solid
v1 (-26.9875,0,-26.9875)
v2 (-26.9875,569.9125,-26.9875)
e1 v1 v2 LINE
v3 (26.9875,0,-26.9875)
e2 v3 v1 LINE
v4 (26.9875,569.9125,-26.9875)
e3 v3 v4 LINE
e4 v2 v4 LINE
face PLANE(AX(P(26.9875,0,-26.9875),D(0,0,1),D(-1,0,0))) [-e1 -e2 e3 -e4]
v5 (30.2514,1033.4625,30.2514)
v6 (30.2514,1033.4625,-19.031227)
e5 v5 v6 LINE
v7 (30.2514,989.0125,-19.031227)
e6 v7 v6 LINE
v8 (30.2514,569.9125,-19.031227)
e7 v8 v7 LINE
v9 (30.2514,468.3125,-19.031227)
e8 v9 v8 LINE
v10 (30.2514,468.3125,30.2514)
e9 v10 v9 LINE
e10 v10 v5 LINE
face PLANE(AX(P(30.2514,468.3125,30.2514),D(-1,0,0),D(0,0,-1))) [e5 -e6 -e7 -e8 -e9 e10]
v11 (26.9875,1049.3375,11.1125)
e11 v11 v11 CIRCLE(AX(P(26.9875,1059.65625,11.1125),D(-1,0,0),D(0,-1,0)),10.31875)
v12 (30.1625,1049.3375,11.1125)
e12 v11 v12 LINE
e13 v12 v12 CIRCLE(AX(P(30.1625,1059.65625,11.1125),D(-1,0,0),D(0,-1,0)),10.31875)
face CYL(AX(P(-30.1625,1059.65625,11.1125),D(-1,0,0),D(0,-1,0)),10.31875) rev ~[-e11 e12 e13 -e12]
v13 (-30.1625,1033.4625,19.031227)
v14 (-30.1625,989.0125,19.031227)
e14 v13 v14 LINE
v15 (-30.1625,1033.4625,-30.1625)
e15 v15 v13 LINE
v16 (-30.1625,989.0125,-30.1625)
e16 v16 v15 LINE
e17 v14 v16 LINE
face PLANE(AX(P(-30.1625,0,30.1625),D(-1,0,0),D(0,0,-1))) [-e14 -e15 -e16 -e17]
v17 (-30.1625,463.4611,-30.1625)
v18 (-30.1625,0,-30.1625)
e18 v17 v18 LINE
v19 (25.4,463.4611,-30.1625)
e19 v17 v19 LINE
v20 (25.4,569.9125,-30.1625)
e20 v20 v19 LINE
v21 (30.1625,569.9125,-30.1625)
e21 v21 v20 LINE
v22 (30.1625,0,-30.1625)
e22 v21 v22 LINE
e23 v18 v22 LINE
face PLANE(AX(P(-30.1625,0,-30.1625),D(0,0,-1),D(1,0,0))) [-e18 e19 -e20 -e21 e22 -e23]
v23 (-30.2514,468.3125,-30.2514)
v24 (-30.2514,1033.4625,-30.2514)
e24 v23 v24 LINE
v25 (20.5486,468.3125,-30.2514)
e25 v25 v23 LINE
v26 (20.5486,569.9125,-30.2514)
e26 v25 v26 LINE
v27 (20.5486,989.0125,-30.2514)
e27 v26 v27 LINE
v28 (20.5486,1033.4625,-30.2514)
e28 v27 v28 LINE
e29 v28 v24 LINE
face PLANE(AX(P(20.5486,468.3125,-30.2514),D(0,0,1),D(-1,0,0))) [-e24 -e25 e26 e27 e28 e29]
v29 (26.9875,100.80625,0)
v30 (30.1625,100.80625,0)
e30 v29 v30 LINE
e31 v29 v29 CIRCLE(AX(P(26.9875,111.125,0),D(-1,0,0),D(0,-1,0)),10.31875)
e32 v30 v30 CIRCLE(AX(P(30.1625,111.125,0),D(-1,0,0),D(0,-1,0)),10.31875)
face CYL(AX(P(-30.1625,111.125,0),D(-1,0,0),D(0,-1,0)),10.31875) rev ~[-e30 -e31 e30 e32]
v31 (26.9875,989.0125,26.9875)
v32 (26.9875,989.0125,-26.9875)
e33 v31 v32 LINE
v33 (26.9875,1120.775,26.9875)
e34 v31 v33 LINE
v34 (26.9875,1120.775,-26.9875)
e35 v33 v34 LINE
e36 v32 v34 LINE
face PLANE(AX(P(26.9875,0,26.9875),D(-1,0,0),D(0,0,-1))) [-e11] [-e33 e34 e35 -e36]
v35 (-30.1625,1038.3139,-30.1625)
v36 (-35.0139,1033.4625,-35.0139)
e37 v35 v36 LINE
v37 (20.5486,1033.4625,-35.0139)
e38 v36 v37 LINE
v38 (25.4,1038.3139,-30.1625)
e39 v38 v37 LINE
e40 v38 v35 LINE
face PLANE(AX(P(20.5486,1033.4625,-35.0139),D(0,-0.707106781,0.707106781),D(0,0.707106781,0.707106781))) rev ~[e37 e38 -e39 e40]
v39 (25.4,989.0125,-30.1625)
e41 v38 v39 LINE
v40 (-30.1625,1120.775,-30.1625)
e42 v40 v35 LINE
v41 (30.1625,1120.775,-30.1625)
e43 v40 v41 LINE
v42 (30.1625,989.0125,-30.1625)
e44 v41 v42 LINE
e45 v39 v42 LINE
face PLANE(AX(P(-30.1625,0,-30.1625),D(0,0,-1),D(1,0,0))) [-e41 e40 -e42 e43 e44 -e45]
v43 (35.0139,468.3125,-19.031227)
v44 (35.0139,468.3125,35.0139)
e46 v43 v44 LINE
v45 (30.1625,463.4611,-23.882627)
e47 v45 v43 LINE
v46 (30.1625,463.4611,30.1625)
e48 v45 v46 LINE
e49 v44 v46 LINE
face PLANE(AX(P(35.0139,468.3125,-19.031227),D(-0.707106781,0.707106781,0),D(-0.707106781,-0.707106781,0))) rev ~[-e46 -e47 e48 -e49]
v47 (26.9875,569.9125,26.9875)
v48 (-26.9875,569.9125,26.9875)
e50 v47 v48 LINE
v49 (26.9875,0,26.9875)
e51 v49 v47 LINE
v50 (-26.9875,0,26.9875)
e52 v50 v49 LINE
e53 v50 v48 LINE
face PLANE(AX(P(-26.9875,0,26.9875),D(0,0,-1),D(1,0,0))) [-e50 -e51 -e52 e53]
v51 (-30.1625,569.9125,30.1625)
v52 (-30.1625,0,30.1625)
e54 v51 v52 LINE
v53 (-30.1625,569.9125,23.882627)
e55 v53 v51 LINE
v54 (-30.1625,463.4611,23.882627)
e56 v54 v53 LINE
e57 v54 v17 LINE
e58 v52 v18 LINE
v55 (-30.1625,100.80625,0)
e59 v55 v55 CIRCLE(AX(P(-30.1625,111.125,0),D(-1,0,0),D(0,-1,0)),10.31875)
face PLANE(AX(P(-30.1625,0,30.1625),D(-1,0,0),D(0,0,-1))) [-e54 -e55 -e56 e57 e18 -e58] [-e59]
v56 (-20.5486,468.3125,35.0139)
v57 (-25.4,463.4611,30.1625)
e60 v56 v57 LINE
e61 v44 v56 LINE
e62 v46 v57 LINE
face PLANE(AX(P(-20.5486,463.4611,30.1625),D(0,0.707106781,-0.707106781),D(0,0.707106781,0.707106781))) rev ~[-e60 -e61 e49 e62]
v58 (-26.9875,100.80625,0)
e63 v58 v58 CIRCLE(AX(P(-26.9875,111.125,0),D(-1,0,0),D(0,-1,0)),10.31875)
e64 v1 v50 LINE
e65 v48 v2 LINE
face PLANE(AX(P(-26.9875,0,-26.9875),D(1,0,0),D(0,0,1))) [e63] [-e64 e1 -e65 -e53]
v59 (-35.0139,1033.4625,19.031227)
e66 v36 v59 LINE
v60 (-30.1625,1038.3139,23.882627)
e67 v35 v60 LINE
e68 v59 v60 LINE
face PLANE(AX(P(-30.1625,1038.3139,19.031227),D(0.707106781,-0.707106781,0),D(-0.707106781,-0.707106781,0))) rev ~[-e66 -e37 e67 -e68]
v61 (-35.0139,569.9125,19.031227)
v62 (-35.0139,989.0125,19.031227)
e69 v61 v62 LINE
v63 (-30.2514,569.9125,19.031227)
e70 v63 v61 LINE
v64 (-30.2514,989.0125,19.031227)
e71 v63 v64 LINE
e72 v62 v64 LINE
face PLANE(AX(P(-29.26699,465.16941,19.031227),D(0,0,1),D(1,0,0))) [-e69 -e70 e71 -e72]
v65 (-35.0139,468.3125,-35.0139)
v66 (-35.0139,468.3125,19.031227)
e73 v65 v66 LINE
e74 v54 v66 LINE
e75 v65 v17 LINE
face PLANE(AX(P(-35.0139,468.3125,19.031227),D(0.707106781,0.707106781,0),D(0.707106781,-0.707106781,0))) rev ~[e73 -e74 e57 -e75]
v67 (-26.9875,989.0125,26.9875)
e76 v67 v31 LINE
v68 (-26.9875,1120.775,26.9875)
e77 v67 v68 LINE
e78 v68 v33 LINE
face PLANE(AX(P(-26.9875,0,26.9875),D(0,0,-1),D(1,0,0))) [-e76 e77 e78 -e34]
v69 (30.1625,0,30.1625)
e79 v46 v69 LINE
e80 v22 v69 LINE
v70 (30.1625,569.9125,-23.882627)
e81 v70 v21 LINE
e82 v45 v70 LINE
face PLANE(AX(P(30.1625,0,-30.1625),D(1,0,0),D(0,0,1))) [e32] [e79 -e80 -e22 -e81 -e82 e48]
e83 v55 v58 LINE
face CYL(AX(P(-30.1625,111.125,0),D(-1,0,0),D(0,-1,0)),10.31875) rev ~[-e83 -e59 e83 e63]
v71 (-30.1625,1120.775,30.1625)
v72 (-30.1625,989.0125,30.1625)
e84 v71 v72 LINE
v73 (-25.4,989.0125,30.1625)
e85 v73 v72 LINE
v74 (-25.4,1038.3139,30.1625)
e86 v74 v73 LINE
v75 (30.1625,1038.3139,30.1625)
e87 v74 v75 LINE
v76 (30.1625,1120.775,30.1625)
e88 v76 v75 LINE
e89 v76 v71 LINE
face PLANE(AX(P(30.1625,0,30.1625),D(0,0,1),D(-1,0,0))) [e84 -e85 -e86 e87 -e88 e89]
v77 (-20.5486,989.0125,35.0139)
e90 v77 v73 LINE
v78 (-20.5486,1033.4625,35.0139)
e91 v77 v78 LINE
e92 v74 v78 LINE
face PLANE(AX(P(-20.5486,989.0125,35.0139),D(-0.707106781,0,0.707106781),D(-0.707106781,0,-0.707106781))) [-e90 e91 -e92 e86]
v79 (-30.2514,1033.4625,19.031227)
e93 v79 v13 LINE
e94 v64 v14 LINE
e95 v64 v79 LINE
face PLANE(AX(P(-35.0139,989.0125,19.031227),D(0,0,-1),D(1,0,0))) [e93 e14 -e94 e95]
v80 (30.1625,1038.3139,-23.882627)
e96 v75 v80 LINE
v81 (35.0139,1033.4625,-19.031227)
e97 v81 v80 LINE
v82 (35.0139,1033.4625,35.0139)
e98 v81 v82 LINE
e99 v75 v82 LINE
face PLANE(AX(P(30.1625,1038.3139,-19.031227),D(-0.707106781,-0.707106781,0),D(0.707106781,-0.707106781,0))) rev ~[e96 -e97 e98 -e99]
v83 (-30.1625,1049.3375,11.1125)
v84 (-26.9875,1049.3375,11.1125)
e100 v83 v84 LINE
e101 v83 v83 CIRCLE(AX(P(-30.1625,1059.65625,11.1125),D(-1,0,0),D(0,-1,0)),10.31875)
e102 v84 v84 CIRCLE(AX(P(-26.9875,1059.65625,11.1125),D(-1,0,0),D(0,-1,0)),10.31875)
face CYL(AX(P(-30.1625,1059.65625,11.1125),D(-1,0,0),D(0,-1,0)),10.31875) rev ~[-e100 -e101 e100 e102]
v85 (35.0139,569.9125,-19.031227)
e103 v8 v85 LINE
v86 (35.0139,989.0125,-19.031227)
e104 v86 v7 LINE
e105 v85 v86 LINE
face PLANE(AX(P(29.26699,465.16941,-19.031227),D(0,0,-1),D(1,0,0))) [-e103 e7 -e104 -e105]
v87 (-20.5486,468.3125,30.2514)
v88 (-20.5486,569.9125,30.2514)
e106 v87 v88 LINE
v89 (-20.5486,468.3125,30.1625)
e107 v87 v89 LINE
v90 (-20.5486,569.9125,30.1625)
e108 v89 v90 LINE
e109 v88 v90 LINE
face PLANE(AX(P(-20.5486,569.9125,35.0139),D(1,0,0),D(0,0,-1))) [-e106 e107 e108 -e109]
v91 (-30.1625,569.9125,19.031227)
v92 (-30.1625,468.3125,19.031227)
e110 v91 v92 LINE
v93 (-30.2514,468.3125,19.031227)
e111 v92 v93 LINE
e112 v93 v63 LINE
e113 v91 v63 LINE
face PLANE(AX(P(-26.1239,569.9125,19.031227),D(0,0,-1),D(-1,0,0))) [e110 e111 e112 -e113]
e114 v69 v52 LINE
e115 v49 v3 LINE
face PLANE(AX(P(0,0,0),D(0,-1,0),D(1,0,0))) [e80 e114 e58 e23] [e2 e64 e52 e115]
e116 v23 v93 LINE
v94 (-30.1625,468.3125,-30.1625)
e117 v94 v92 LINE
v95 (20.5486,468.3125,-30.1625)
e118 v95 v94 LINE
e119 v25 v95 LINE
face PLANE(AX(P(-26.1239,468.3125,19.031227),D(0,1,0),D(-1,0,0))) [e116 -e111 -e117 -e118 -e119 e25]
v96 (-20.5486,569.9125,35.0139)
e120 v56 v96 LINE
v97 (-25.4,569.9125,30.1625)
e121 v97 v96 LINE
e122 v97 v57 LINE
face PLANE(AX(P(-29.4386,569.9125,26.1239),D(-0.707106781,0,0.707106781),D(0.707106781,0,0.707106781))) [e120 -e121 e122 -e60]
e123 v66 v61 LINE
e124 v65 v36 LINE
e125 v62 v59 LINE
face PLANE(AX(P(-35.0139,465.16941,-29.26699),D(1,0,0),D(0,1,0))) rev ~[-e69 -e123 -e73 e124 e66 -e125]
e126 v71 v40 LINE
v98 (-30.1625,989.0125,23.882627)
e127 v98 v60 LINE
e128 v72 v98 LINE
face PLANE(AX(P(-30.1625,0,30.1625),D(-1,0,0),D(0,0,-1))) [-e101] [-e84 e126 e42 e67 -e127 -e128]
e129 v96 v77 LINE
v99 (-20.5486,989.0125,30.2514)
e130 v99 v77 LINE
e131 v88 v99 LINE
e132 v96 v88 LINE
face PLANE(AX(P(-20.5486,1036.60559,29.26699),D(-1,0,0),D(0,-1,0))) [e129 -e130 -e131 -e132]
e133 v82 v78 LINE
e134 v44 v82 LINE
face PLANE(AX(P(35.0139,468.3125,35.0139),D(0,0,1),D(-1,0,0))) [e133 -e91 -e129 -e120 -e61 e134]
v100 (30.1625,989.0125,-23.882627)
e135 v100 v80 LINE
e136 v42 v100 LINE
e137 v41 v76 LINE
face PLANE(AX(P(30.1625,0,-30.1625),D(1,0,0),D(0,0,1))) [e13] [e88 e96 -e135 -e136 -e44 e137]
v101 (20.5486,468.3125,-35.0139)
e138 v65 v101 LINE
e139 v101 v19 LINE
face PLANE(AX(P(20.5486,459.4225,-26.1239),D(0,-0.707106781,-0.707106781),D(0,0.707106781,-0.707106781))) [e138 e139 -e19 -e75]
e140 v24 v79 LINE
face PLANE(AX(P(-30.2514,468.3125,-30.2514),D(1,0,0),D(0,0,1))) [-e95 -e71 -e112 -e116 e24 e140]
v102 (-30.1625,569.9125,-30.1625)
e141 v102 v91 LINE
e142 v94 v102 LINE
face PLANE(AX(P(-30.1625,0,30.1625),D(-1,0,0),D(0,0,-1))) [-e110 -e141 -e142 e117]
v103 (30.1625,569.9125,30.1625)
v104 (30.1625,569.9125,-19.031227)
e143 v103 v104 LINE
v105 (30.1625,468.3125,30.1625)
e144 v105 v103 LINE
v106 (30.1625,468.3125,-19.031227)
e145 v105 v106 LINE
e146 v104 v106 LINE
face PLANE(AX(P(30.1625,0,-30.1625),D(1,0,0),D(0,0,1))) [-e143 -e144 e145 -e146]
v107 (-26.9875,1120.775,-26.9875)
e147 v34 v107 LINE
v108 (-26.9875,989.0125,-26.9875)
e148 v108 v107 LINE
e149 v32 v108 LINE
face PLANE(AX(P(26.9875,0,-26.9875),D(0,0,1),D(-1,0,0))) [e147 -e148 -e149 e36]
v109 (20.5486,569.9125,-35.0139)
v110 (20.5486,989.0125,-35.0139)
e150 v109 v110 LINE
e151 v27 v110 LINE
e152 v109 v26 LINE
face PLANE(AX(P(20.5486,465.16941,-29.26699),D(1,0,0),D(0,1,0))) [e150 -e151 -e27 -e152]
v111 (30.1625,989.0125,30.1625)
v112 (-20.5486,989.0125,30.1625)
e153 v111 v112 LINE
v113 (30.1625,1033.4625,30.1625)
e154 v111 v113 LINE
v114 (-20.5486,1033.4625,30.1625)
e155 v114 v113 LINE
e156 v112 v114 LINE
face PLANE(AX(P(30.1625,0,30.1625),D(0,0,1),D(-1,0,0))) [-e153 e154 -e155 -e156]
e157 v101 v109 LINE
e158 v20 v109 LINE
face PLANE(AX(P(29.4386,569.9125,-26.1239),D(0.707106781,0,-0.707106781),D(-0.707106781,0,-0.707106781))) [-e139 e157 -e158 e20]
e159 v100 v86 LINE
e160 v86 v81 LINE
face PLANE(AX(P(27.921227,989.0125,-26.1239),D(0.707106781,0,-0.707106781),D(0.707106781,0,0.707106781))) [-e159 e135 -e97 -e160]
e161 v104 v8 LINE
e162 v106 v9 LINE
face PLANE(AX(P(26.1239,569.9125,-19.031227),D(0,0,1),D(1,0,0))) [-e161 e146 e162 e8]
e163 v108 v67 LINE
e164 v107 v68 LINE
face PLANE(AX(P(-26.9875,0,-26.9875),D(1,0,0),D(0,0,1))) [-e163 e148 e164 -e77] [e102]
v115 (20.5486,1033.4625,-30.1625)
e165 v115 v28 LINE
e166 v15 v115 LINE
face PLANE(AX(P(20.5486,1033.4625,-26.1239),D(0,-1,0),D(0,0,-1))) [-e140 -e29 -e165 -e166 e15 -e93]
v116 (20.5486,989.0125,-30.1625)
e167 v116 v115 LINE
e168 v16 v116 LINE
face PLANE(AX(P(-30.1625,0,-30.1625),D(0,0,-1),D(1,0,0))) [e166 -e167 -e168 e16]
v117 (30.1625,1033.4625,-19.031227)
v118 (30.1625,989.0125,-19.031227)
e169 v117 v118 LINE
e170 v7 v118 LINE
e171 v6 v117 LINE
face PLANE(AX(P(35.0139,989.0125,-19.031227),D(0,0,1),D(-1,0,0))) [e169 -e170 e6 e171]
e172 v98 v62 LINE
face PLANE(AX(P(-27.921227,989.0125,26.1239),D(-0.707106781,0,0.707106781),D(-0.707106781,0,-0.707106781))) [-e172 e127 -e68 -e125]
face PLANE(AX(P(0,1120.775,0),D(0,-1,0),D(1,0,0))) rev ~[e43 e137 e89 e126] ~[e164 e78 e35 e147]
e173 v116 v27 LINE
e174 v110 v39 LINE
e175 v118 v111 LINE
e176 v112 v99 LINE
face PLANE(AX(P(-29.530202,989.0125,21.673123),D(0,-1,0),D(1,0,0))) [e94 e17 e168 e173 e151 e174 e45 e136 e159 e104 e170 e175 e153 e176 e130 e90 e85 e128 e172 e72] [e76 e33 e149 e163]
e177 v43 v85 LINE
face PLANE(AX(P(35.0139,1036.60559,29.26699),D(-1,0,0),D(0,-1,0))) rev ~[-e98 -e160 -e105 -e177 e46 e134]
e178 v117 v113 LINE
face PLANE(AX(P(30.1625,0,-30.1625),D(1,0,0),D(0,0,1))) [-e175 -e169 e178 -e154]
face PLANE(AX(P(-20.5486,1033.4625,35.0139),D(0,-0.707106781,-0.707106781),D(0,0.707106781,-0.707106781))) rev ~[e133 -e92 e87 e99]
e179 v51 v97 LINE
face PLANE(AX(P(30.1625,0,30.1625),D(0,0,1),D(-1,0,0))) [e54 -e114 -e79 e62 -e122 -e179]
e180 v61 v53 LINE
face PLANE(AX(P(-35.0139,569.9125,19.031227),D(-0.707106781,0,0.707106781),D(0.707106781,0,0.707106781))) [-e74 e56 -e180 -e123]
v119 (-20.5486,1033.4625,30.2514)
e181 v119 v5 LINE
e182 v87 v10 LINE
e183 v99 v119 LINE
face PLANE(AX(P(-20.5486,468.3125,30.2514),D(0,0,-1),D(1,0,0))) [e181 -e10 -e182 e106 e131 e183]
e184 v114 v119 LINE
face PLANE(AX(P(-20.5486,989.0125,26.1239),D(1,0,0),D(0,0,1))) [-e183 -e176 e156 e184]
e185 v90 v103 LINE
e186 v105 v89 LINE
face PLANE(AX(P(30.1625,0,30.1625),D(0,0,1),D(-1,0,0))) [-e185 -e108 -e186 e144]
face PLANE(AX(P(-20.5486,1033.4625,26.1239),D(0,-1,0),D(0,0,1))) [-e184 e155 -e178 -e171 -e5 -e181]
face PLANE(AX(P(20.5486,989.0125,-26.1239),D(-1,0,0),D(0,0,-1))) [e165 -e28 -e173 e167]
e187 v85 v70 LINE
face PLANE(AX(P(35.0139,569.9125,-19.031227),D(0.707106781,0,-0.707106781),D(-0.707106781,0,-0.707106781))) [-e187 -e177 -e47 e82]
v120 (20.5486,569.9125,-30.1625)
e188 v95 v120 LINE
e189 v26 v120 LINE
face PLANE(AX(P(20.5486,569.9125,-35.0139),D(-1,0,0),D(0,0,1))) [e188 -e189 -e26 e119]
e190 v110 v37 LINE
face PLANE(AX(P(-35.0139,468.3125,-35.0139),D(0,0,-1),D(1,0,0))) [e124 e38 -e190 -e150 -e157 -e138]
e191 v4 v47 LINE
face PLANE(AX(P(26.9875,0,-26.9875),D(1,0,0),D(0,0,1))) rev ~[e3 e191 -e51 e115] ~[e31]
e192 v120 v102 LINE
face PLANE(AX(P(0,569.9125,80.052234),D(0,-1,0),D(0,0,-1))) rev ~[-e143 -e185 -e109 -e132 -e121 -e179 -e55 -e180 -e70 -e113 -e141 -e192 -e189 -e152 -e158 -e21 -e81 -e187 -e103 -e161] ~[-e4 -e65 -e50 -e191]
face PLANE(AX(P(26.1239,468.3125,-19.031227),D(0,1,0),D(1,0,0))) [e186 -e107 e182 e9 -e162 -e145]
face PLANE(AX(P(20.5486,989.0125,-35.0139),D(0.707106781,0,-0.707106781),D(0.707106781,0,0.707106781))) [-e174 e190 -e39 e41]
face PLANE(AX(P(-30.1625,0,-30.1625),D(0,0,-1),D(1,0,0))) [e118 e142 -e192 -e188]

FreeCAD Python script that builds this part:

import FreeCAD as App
import Part
import Sketcher

V = App.Vector
Q = App.Units.Quantity


def add_polygon(sketch, points):
    """Adds a closed chain of lines whose ends are joined by coincident constraints."""
    first, n = sketch.GeometryCount, len(points)
    for a, b in zip(points, points[1:] + points[:1]):
        sketch.addGeometry(Part.LineSegment(App.Vector(*a, 0), App.Vector(*b, 0)), False)
    for i in range(n):
        sketch.addConstraint(Sketcher.Constraint("Coincident", first + i, 2, first + (i + 1) % n, 1))

doc = App.newDocument("Part")
body = doc.addObject("PartDesign::Body", "Body")
body.AllowCompound = True

sketch1 = body.newObject("Sketcher::SketchObject", "Sketch")
sketch1.AttachmentSupport = (doc.getObject("XZ_Plane"), [""])
sketch1.MapMode = "FlatFace"
add_polygon(sketch1, [(30, 30), (-30, 30), (-30, -30), (30, -30)])
add_polygon(sketch1, [(-27, 27), (27, 27), (27, -27), (-27, -27)])
sketch1.addConstraint([
    Sketcher.Constraint("Horizontal", 0),
    Sketcher.Constraint("Vertical", 1),
    Sketcher.Constraint("Horizontal", 2),
    Sketcher.Constraint("Vertical", 3),
    Sketcher.Constraint("Horizontal", 4),
    Sketcher.Constraint("Vertical", 5),
    Sketcher.Constraint("Horizontal", 6),
    Sketcher.Constraint("Vertical", 7),
    Sketcher.Constraint("Symmetric", 0, 2, 2, 2, -1, 1),
    Sketcher.Constraint("Symmetric", 4, 2, 6, 2, -1, 1),
    Sketcher.Constraint("Equal", 2, 1),
    Sketcher.Constraint("Equal", 6, 5),
    Sketcher.Constraint("DistanceX", 0, 2, 0, 1, Q("2.375 in")),
    Sketcher.Constraint("DistanceX", 4, 1, 4, 2, Q("2.125 in")),
])
pad1 = body.newObject("PartDesign::Pad", "Pad")
pad1.Profile = sketch1
pad1.Length = Q("44.125 in")
pad1.Reversed = True

sketch2 = body.newObject("Sketcher::SketchObject", "Sketch001")
sketch2.AttachmentSupport = (doc.getObject("YZ_Plane"), [""])
sketch2.MapMode = "FlatFace"
add_polygon(sketch2, [(570, 80), (570, -86), (989, -86), (989, 80)])
sketch2.addConstraint([
    Sketcher.Constraint("Vertical", 0),
    Sketcher.Constraint("Horizontal", 1),
    Sketcher.Constraint("Vertical", 2),
    Sketcher.Constraint("Horizontal", 3),
    Sketcher.Constraint("DistanceX", 1, 1, 1, 2, Q("16.5 in")),
    Sketcher.Constraint("DistanceX", -1, 1, 0, 2, Q("22.4375 in")),
    Sketcher.Constraint("DistanceY", 0, 2, 0, 1, Q("166.374519 mm")),
    Sketcher.Constraint("DistanceY", 0, 2, -1, 1, Q("86.322285 mm")),
])
pocket1 = body.newObject("PartDesign::Pocket", "Pocket")
pocket1.Profile = sketch2
pocket1.Length = Q("4.2 in")
pocket1.Midplane = True
body2 = doc.addObject("PartDesign::Body", "Body001")
body2.AllowCompound = True

sketch3 = body2.newObject("Sketcher::SketchObject", "Sketch002")
sketch3.AttachmentSupport = (doc.getObject("XZ_Plane001"), [""])
sketch3.MapMode = "FlatFace"
sketch3.AttachmentOffset = App.Placement(V(0, 0, -18.4375 * 25.4), App.Rotation())
add_polygon(sketch3, [(-20.5, 35), (-20.5, 30.3), (30.3, 30.3), (30.3, -19), (35, -19), (35, 35)])
add_polygon(sketch3, [(-30.3, 19), (-35, 19), (-35, -35), (20.5, -35), (20.5, -30.3), (-30.3, -30.3)])
sketch3.addConstraint([
    Sketcher.Constraint("Vertical", 0),
    Sketcher.Constraint("Horizontal", 1),
    Sketcher.Constraint("Vertical", 2),
    Sketcher.Constraint("Horizontal", 3),
    Sketcher.Constraint("Vertical", 4),
    Sketcher.Constraint("Horizontal", 5),
    Sketcher.Constraint("Horizontal", 6),
    Sketcher.Constraint("Vertical", 7),
    Sketcher.Constraint("Horizontal", 8),
    Sketcher.Constraint("Vertical", 9),
    Sketcher.Constraint("Horizontal", 10),
    Sketcher.Constraint("Vertical", 11),
    Sketcher.Constraint("Symmetric", 3, 2, 6, 2, -1, 1),
    Sketcher.Constraint("Symmetric", 5, 2, 8, 2, -1, 1),
    Sketcher.Constraint("Symmetric", 1, 2, 10, 2, -1, 1),
    Sketcher.Constraint("Equal", 6, 0),
    Sketcher.Constraint("DistanceX", 1, 1, 1, 2, Q("2 in")),
    Sketcher.Constraint("DistanceX", 3, 1, 3, 2, Q("0.1875 in")),
    Sketcher.Constraint("DistanceX", 0, 2, -1, 1, Q("0.809 in")),
    Sketcher.Constraint("DistanceY", -1, 1, 0, 2, Q("1.191 in")),
    Sketcher.Constraint("DistanceY", 2, 2, 2, 1, Q("49.282627 mm")),
])
pad2 = body2.newObject("PartDesign::Pad", "Pad001")
pad2.Profile = sketch3
pad2.Length = Q("22.25 in")
pad2.Reversed = True
body.AllowCompound = True
doc.recompute()

boolean = body.newObject("PartDesign::Boolean", "Boolean")
boolean.Type = "Fuse"
boolean.addObjects([body2])

sketch4 = body.newObject("Sketcher::SketchObject", "Sketch003")
sketch4.AttachmentSupport = (doc.getObject("YZ_Plane"), [""])
sketch4.MapMode = "FlatFace"
sketch4.AttachmentOffset = App.Placement(V(0, 0, -0.809 * 25.4), App.Rotation())
add_polygon(sketch4, [(1033, 35), (1042, 26), (1033, 26)])
add_polygon(sketch4, [(459, 26), (468, 35), (468, 26)])
sketch4.addConstraint([
    Sketcher.Constraint("Horizontal", 1),
    Sketcher.Constraint("Vertical", 2),
    Sketcher.Constraint("Vertical", 4),
    Sketcher.Constraint("Horizontal", 5),
    Sketcher.Constraint("Perpendicular", 0, 3),
    Sketcher.Constraint("Horizontal", 2, 2, 3, 2),
    Sketcher.Constraint("Horizontal", 1, 2, 4, 2),
    Sketcher.Constraint("Equal", 1, 5),
    Sketcher.Constraint("DistanceX", 1, 2, 1, 1, Q("0.35 in")),
    Sketcher.Constraint("DistanceX", 3, 2, 0, 2, Q("22.6 in")),
    Sketcher.Constraint("DistanceX", -1, 1, 1, 2, Q("40.6875 in")),
    Sketcher.Constraint("DistanceY", -1, 1, 0, 2, Q("1.0285 in")),
])
pad3 = body.newObject("PartDesign::Pad", "Pad002")
pad3.Profile = sketch4
pad3.Length = Q("2.1875 in")

sketch5 = body.newObject("Sketcher::SketchObject", "Sketch004")
sketch5.AttachmentSupport = (doc.getObject("XY_Plane"), [""])
sketch5.MapMode = "FlatFace"
sketch5.AttachmentOffset = App.Placement(V(0, 0, -19.031227), App.Rotation())
add_polygon(sketch5, [(35, 468), (26, 459), (26, 468)])
add_polygon(sketch5, [(26, 1042), (35, 1033), (26, 1033)])
sketch5.addConstraint([
    Sketcher.Constraint("Vertical", 1),
    Sketcher.Constraint("Horizontal", 2),
    Sketcher.Constraint("Horizontal", 4),
    Sketcher.Constraint("Vertical", 5),
    Sketcher.Constraint("Perpendicular", 0, 3),
    Sketcher.Constraint("Vertical", 2, 2, 3, 2),
    Sketcher.Constraint("Vertical", 1, 2, 4, 2),
    Sketcher.Constraint("Equal", 4, 1),
    Sketcher.Constraint("DistanceX", 2, 1, 2, 2, Q("0.35 in")),
    Sketcher.Constraint("DistanceY", 0, 2, 3, 2, Q("22.6 in")),
    Sketcher.Constraint("DistanceY", -1, 1, 1, 2, Q("18.4375 in")),
    Sketcher.Constraint("DistanceX", -1, 1, 0, 2, Q("1.0285 in")),
])
pad4 = body.newObject("PartDesign::Pad", "Pad003")
pad4.Profile = sketch5
pad4.Length = 45.155127

sketch6 = body.newObject("Sketcher::SketchObject", "Sketch005")
sketch6.AttachmentSupport = (doc.getObject("XY_Plane"), [""])
sketch6.MapMode = "FlatFace"
sketch6.AttachmentOffset = App.Placement(V(0, 0, 1.0285 * 25.4), App.Rotation())
add_polygon(sketch6, [(35, 459.4), (30.2, 459.4), (30.2, 463.5), (35, 468.3)])
sketch6.addConstraint([
    Sketcher.Constraint("Horizontal", 0),
    Sketcher.Constraint("Vertical", 1),
    Sketcher.Constraint("Vertical", 3),
    Sketcher.Constraint("Angle", 2, Q("45 deg")),
    Sketcher.Constraint("DistanceY", 3, 2, 3, 1, Q("0.35 in")),
    Sketcher.Constraint("DistanceX", 0, 2, 0, 1, Q("0.191 in")),
    Sketcher.Constraint("DistanceX", -1, 1, 0, 2, Q("1.1875 in")),
    Sketcher.Constraint("DistanceY", -1, 1, 2, 2, Q("18.4375 in")),
])
pocket2 = body.newObject("PartDesign::Pocket", "Pocket001")
pocket2.Profile = sketch6
pocket2.Length = Q("1 in")
pocket2.Reversed = True

sketch7 = body.newObject("Sketcher::SketchObject", "Sketch006")
sketch7.AttachmentSupport = (doc.getObject("XY_Plane"), [""])
sketch7.MapMode = "FlatFace"
sketch7.AttachmentOffset = App.Placement(V(0, 0, 1.0285 * 25.4), App.Rotation())
add_polygon(sketch7, [(35, 1042.4), (35, 1033.5), (30.2, 1038.3), (30.2, 1042.4)])
sketch7.addConstraint([
    Sketcher.Constraint("Vertical", 0),
    Sketcher.Constraint("Vertical", 2),
    Sketcher.Constraint("Horizontal", 3),
    Sketcher.Constraint("Angle", 1, Q("135 deg")),
    Sketcher.Constraint("DistanceY", 0, 2, 0, 1, Q("0.35 in")),
    Sketcher.Constraint("DistanceX", 3, 1, 3, 2, Q("0.191 in")),
    Sketcher.Constraint("DistanceY", -1, 1, 0, 2, Q("40.6875 in")),
    Sketcher.Constraint("DistanceX", -1, 1, 1, 2, Q("1.1875 in")),
])
pocket3 = body.newObject("PartDesign::Pocket", "Pocket002")
pocket3.Profile = sketch7
pocket3.Length = Q("1 in")
pocket3.Reversed = True

sketch8 = body.newObject("Sketcher::SketchObject", "Sketch007")
sketch8.AttachmentSupport = (doc.getObject("YZ_Plane"), [""])
sketch8.MapMode = "FlatFace"
sketch8.AttachmentOffset = App.Placement(V(0, 0, 0.809 * 25.4), App.Rotation())
add_polygon(sketch8, [(459, -26), (468, -35), (468, -26)])
add_polygon(sketch8, [(1033, -26), (1033, -35), (1042, -26)])
sketch8.addConstraint([
    Sketcher.Constraint("Vertical", 1),
    Sketcher.Constraint("Horizontal", 2),
    Sketcher.Constraint("Vertical", 3),
    Sketcher.Constraint("Horizontal", 5),
    Sketcher.Constraint("Perpendicular", 0, 4),
    Sketcher.Constraint("Horizontal", 0, 2, 3, 2),
    Sketcher.Constraint("Horizontal", 2, 2, 4, 2),
    Sketcher.Constraint("Equal", 2, 5),
    Sketcher.Constraint("DistanceX", 2, 2, 2, 1, Q("0.35 in")),
    Sketcher.Constraint("DistanceX", 2, 2, 3, 2, Q("22.6 in")),
    Sketcher.Constraint("DistanceX", -1, 1, 0, 2, Q("18.4375 in")),
    Sketcher.Constraint("DistanceY", 0, 2, -1, 1, Q("1.3785 in")),
])
pad5 = body.newObject("PartDesign::Pad", "Pad004")
pad5.Profile = sketch8
pad5.Length = Q("2.1875 in")
pad5.Reversed = True

sketch9 = body.newObject("Sketcher::SketchObject", "Sketch008")
sketch9.AttachmentSupport = (doc.getObject("XY_Plane"), [""])
sketch9.MapMode = "FlatFace"
sketch9.AttachmentOffset = App.Placement(V(0, 0, 19.031227), App.Rotation())
add_polygon(sketch9, [(-26, 468), (-35, 468), (-26, 459)])
add_polygon(sketch9, [(-26, 1042), (-35, 1033), (-26, 1033)])
sketch9.addConstraint([
    Sketcher.Constraint("Horizontal", 0),
    Sketcher.Constraint("Vertical", 2),
    Sketcher.Constraint("Horizontal", 4),
    Sketcher.Constraint("Vertical", 5),
    Sketcher.Constraint("Perpendicular", 1, 3),
    Sketcher.Constraint("Vertical", 0, 2, 3, 2),
    Sketcher.Constraint("Vertical", 2, 2, 4, 2),
    Sketcher.Constraint("Equal", 4, 2),
    Sketcher.Constraint("DistanceX", 0, 2, 0, 1, Q("0.35 in")),
    Sketcher.Constraint("DistanceY", 1, 2, 3, 2, Q("22.6 in")),
    Sketcher.Constraint("DistanceY", -1, 1, 0, 2, Q("18.4375 in")),
    Sketcher.Constraint("DistanceX", 0, 2, -1, 1, Q("1.3785 in")),
])
pad6 = body.newObject("PartDesign::Pad", "Pad005")
pad6.Profile = sketch9
pad6.Length = 49.193727
pad6.Reversed = True

sketch10 = body.newObject("Sketcher::SketchObject", "Sketch009")
sketch10.AttachmentSupport = (doc.getObject("XY_Plane"), [""])
sketch10.MapMode = "FlatFace"
sketch10.AttachmentOffset = App.Placement(V(0, 0, -1.0285 * 25.4), App.Rotation())
add_polygon(sketch10, [(-35, 1033.5), (-30.2, 1038.3), (-30.2, 1042.4), (-35, 1042.4)])
sketch10.addConstraint([
    Sketcher.Constraint("Vertical", 1),
    Sketcher.Constraint("Horizontal", 2),
    Sketcher.Constraint("Vertical", 3),
    Sketcher.Constraint("Angle", 0, Q("45 deg")),
    Sketcher.Constraint("DistanceY", 3, 2, 3, 1, Q("0.35 in")),
    Sketcher.Constraint("DistanceX", 2, 2, 2, 1, Q("0.191 in")),
    Sketcher.Constraint("DistanceX", 0, 2, -1, 1, Q("1.1875 in")),
    Sketcher.Constraint("DistanceY", -1, 1, 3, 2, Q("40.6875 in")),
])
pocket4 = body.newObject("PartDesign::Pocket", "Pocket003")
pocket4.Profile = sketch10
pocket4.Length = Q("1 in")

sketch11 = body.newObject("Sketcher::SketchObject", "Sketch010")
sketch11.AttachmentSupport = (doc.getObject("XZ_Plane"), [""])
sketch11.MapMode = "FlatFace"
sketch11.AttachmentOffset = App.Placement(V(0, 0, -22.4375 * 25.4), App.Rotation())
add_polygon(sketch11, [(-29.4, 26.1), (-20.5, 35), (-20.5, 26.1), (-26.1, 26.1), (-26.1, 27.9), (-27.9, 26.1)])
add_polygon(sketch11, [(-27.9, 26.1), (-26.1, 26.1), (-26.1, 19), (-35, 19)])
add_polygon(sketch11, [(26.1, -26.1), (26.1, -19), (35, -19), (27.9, -26.1)])
add_polygon(sketch11, [(20.5, -26.1), (26.1, -26.1), (26.1, -27.9), (27.9, -26.1), (29.4, -26.1), (20.5, -35)])
sketch11.addConstraint([
    Sketcher.Constraint("Vertical", 1),
    Sketcher.Constraint("Horizontal", 2),
    Sketcher.Constraint("Vertical", 3),
    Sketcher.Constraint("Horizontal", 5),
    Sketcher.Constraint("Horizontal", 6),
    Sketcher.Constraint("Vertical", 7),
    Sketcher.Constraint("Horizontal", 8),
    Sketcher.Constraint("Vertical", 10),
    Sketcher.Constraint("Horizontal", 11),
    Sketcher.Constraint("Horizontal", 13),
    Sketcher.Constraint("Horizontal", 14),
    Sketcher.Constraint("Vertical", 15),
    Sketcher.Constraint("Horizontal", 17),
    Sketcher.Constraint("Vertical", 19),
    Sketcher.Constraint("Coincident", 6, 2, 2, 2),
    Sketcher.Constraint("Coincident", 9, 2, 4, 2),
    Sketcher.Constraint("Coincident", 14, 2, 13, 2),
    Sketcher.Constraint("Coincident", 16, 2, 12, 2),
    Sketcher.Constraint("Symmetric", 7, 2, 10, 2, -1, 1),
    Sketcher.Constraint("Symmetric", 4, 2, 12, 2, -1, 1),
    Sketcher.Constraint("Symmetric", 0, 2, 18, 2, -1, 1),
    Sketcher.Constraint("Parallel", 0, 4),
    Sketcher.Constraint("Parallel", 4, 9),
    Sketcher.Constraint("Parallel", 9, 12),
    Sketcher.Constraint("Parallel", 12, 16),
    Sketcher.Constraint("Parallel", 16, 18),
    Sketcher.Constraint("Equal", 11, 1),
    Sketcher.Constraint("Equal", 13, 3),
    Sketcher.Constraint("DistanceX", 8, 2, 8, 1, Q("0.35 in")),
    Sketcher.Constraint("DistanceX", 2, 2, 2, 1, Q("0.2195 in")),
    Sketcher.Constraint("DistanceX", 0, 2, -1, 1, Q("0.809 in")),
    Sketcher.Constraint("DistanceY", 12, 2, 1, 2, Q("2.057 in")),
    Sketcher.Constraint("DistanceX", 5, 2, 5, 1, Q("1.517373 mm")),
])
pad7 = body.newObject("PartDesign::Pad", "Pad006")
pad7.Profile = sketch11
pad7.Length = Q("4.48 in")

sketch12 = body.newObject("Sketcher::SketchObject", "Sketch011")
sketch12.AttachmentSupport = (doc.getObject("YZ_Plane"), [""])
sketch12.MapMode = "FlatFace"
sketch12.AttachmentOffset = App.Placement(V(0, 0, 0.809 * 25.4), App.Rotation())
add_polygon(sketch12, [(468.3, -35), (456.1, -35), (456.1, -30.2), (463.5, -30.2)])
sketch12.addConstraint([
    Sketcher.Constraint("Horizontal", 0),
    Sketcher.Constraint("Vertical", 1),
    Sketcher.Constraint("Horizontal", 2),
    Sketcher.Constraint("Angle", 3, Q("-45 deg")),
    Sketcher.Constraint("DistanceX", 0, 2, 0, 1, Q("0.48 in")),
    Sketcher.Constraint("DistanceX", 2, 1, 2, 2, Q("0.289 in")),
    Sketcher.Constraint("DistanceY", 1, 2, -1, 1, Q("1.1875 in")),
    Sketcher.Constraint("DistanceX", -1, 1, 3, 2, Q("18.4375 in")),
])
pocket5 = body.newObject("PartDesign::Pocket", "Pocket004")
pocket5.Profile = sketch12
pocket5.Length = Q("1 in")
pocket5.Reversed = True

sketch13 = body.newObject("Sketcher::SketchObject", "Sketch012")
sketch13.AttachmentSupport = (doc.getObject("XY_Plane"), [""])
sketch13.MapMode = "FlatFace"
sketch13.AttachmentOffset = App.Placement(V(0, 0, -19.031227), App.Rotation())
add_polygon(sketch13, [(35, 468.3), (30.2, 463.5), (30.2, 456.1), (35, 456.1)])
sketch13.addConstraint([
    Sketcher.Constraint("Vertical", 1),
    Sketcher.Constraint("Horizontal", 2),
    Sketcher.Constraint("Vertical", 3),
    Sketcher.Constraint("Angle", 0, Q("-135 deg")),
    Sketcher.Constraint("DistanceY", 3, 1, 3, 2, Q("0.48 in")),
    Sketcher.Constraint("DistanceX", 2, 1, 2, 2, Q("0.191 in")),
    Sketcher.Constraint("DistanceX", -1, 1, 0, 2, Q("1.1875 in")),
    Sketcher.Constraint("DistanceY", -1, 1, 3, 2, Q("18.4375 in")),
])
pocket6 = body.newObject("PartDesign::Pocket", "Pocket005")
pocket6.Profile = sketch13
pocket6.Length = Q("1 in")

sketch14 = body.newObject("Sketcher::SketchObject", "Sketch013")
sketch14.AttachmentSupport = (doc.getObject("YZ_Plane"), [""])
sketch14.MapMode = "FlatFace"
sketch14.AttachmentOffset = App.Placement(V(0, 0, -0.809 * 25.4), App.Rotation())
add_polygon(sketch14, [(456.1, 35), (456.1, 30.2), (463.5, 30.2), (468.3, 35)])
sketch14.addConstraint([
    Sketcher.Constraint("Vertical", 0),
    Sketcher.Constraint("Horizontal", 1),
    Sketcher.Constraint("Horizontal", 3),
    Sketcher.Constraint("Angle", 2, Q("45 deg")),
    Sketcher.Constraint("DistanceX", 3, 2, 3, 1, Q("0.48 in")),
    Sketcher.Constraint("DistanceX", 1, 1, 1, 2, Q("0.289 in")),
    Sketcher.Constraint("DistanceY", -1, 1, 0, 2, Q("1.1875 in")),
    Sketcher.Constraint("DistanceX", -1, 1, 2, 2, Q("18.4375 in")),
])
pocket7 = body.newObject("PartDesign::Pocket", "Pocket006")
pocket7.Profile = sketch14
pocket7.Length = Q("1 in")

sketch15 = body.newObject("Sketcher::SketchObject", "Sketch014")
sketch15.AttachmentSupport = (doc.getObject("XY_Plane"), [""])
sketch15.MapMode = "FlatFace"
sketch15.AttachmentOffset = App.Placement(V(0, 0, 19.031227), App.Rotation())
add_polygon(sketch15, [(-35, 468.3), (-30.2, 463.5), (-30.2, 456.1), (-35, 456.1)])
sketch15.addConstraint([
    Sketcher.Constraint("Vertical", 1),
    Sketcher.Constraint("Horizontal", 2),
    Sketcher.Constraint("Vertical", 3),
    Sketcher.Constraint("Angle", 0, Q("-45 deg")),
    Sketcher.Constraint("DistanceY", 3, 1, 3, 2, Q("0.48 in")),
    Sketcher.Constraint("DistanceX", 2, 2, 2, 1, Q("0.191 in")),
    Sketcher.Constraint("DistanceX", 0, 2, -1, 1, Q("1.1875 in")),
    Sketcher.Constraint("DistanceY", -1, 1, 3, 2, Q("18.4375 in")),
])
pocket8 = body.newObject("PartDesign::Pocket", "Pocket007")
pocket8.Profile = sketch15
pocket8.Length = Q("20 in")
pocket8.Midplane = True

sketch16 = body.newObject("Sketcher::SketchObject", "Sketch015")
sketch16.AttachmentSupport = (doc.getObject("XZ_Plane"), [""])
sketch16.MapMode = "FlatFace"
sketch16.AttachmentOffset = App.Placement(V(0, 0, -38.9375 * 25.4), App.Rotation())
add_polygon(sketch16, [(-35, 19), (-26.1, 19), (-26.1, 26.1), (-27.9, 26.1)])
add_polygon(sketch16, [(-26.1, 27.9), (-26.1, 26.1), (-20.5, 26.1), (-20.5, 35), (-29.4, 26.1), (-27.9, 26.1)])
add_polygon(sketch16, [(20.5, -26.1), (20.5, -35), (29.4, -26.1), (27.9, -26.1), (26.1, -27.9), (26.1, -26.1)])
add_polygon(sketch16, [(26.1, -19), (26.1, -26.1), (27.9, -26.1), (35, -19)])
sketch16.addConstraint([
    Sketcher.Constraint("Horizontal", 0),
    Sketcher.Constraint("Vertical", 1),
    Sketcher.Constraint("Horizontal", 2),
    Sketcher.Constraint("Vertical", 4),
    Sketcher.Constraint("Horizontal", 5),
    Sketcher.Constraint("Vertical", 6),
    Sketcher.Constraint("Horizontal", 8),
    Sketcher.Constraint("Vertical", 10),
    Sketcher.Constraint("Horizontal", 12),
    Sketcher.Constraint("Vertical", 14),
    Sketcher.Constraint("Horizontal", 15),
    Sketcher.Constraint("Vertical", 16),
    Sketcher.Constraint("Horizontal", 17),
    Sketcher.Constraint("Horizontal", 19),
    Sketcher.Constraint("Coincident", 4, 2, 1, 2),
    Sketcher.Constraint("Coincident", 8, 2, 2, 2),
    Sketcher.Constraint("Coincident", 16, 2, 14, 2),
    Sketcher.Constraint("Coincident", 17, 2, 12, 2),
    Sketcher.Constraint("Symmetric", 6, 2, 10, 2, -1, 1),
    Sketcher.Constraint("Symmetric", 7, 2, 11, 2, -1, 1),
    Sketcher.Constraint("Symmetric", 9, 2, 13, 2, -1, 1),
    Sketcher.Constraint("Symmetric", 3, 2, 18, 2, -1, 1),
    Sketcher.Constraint("Parallel", 3, 7),
    Sketcher.Constraint("Parallel", 7, 9),
    Sketcher.Constraint("Parallel", 11, 13),
    Sketcher.Constraint("Equal", 17, 4),
    Sketcher.Constraint("Equal", 19, 6),
    Sketcher.Constraint("DistanceX", 0, 1, 0, 2, Q("0.35 in")),
    Sketcher.Constraint("DistanceX", 5, 1, 5, 2, Q("0.2195 in")),
    Sketcher.Constraint("DistanceX", 5, 2, -1, 1, Q("0.809 in")),
    Sketcher.Constraint("DistanceY", 10, 2, 5, 2, Q("2.407 in")),
    Sketcher.Constraint("DistanceX", 2, 2, 2, 1, Q("1.797327 mm")),
])
pad8 = body.newObject("PartDesign::Pad", "Pad007")
pad8.Profile = sketch16
pad8.Length = Q("2.5 in")
pad8.Reversed = True

sketch17 = body.newObject("Sketcher::SketchObject", "Sketch016")
sketch17.AttachmentSupport = (doc.getObject("YZ_Plane"), [""])
sketch17.MapMode = "FlatFace"
sketch17.AttachmentOffset = App.Placement(V(0, 0, 0.809 * 25.4), App.Rotation())
add_polygon(sketch17, [(1052.5, -35), (1033.5, -35), (1038.3, -30.2), (1052.5, -30.2)])
sketch17.addConstraint([
    Sketcher.Constraint("Horizontal", 0),
    Sketcher.Constraint("Horizontal", 2),
    Sketcher.Constraint("Vertical", 3),
    Sketcher.Constraint("Angle", 1, Q("45 deg")),
    Sketcher.Constraint("DistanceX", 0, 2, 0, 1, Q("0.75 in")),
    Sketcher.Constraint("DistanceX", 2, 1, 2, 2, Q("0.559 in")),
    Sketcher.Constraint("DistanceX", -1, 1, 0, 2, Q("40.6875 in")),
    Sketcher.Constraint("DistanceY", 1, 2, -1, 1, Q("1.1875 in")),
])
pocket9 = body.newObject("PartDesign::Pocket", "Pocket008")
pocket9.Profile = sketch17
pocket9.Length = Q("1 in")
pocket9.Reversed = True

sketch18 = body.newObject("Sketcher::SketchObject", "Sketch017")
sketch18.AttachmentSupport = (doc.getObject("XY_Plane"), [""])
sketch18.MapMode = "FlatFace"
sketch18.AttachmentOffset = App.Placement(V(0, 0, 19.031227), App.Rotation())
add_polygon(sketch18, [(-30.2, 1038.3), (-35, 1033.5), (-35, 1052.5), (-30.2, 1052.5)])
sketch18.addConstraint([
    Sketcher.Constraint("Vertical", 1),
    Sketcher.Constraint("Horizontal", 2),
    Sketcher.Constraint("Vertical", 3),
    Sketcher.Constraint("Angle", 0, Q("-135 deg")),
    Sketcher.Constraint("DistanceY", 1, 1, 1, 2, Q("0.75 in")),
    Sketcher.Constraint("DistanceX", 2, 1, 2, 2, Q("0.191 in")),
    Sketcher.Constraint("DistanceY", -1, 1, 0, 2, Q("40.6875 in")),
    Sketcher.Constraint("DistanceX", 2, 2, -1, 1, Q("1.1875 in")),
])
pocket10 = body.newObject("PartDesign::Pocket", "Pocket009")
pocket10.Profile = sketch18
pocket10.Length = Q("1 in")
pocket10.Reversed = True

sketch19 = body.newObject("Sketcher::SketchObject", "Sketch018")
sketch19.AttachmentSupport = (doc.getObject("YZ_Plane"), [""])
sketch19.MapMode = "FlatFace"
sketch19.AttachmentOffset = App.Placement(V(0, 0, -0.809 * 25.4), App.Rotation())
add_polygon(sketch19, [(1052.5, 35), (1033.5, 35), (1038.3, 30.2), (1052.5, 30.2)])
sketch19.addConstraint([
    Sketcher.Constraint("Horizontal", 0),
    Sketcher.Constraint("Horizontal", 2),
    Sketcher.Constraint("Vertical", 3),
    Sketcher.Constraint("Angle", 1, Q("-45 deg")),
    Sketcher.Constraint("DistanceX", 0, 2, 0, 1, Q("0.75 in")),
    Sketcher.Constraint("DistanceX", 2, 1, 2, 2, Q("0.559 in")),
    Sketcher.Constraint("DistanceX", -1, 1, 0, 2, Q("40.6875 in")),
    Sketcher.Constraint("DistanceY", -1, 1, 1, 2, Q("1.1875 in")),
])
pocket11 = body.newObject("PartDesign::Pocket", "Pocket010")
pocket11.Profile = sketch19
pocket11.Length = Q("1 in")

sketch20 = body.newObject("Sketcher::SketchObject", "Sketch019")
sketch20.AttachmentSupport = (doc.getObject("XY_Plane"), [""])
sketch20.MapMode = "FlatFace"
sketch20.AttachmentOffset = App.Placement(V(0, 0, -19.031227), App.Rotation())
add_polygon(sketch20, [(30.2, 1052.5), (30.2, 1038.3), (35, 1033.5), (35, 1052.5)])
sketch20.addConstraint([
    Sketcher.Constraint("Vertical", 0),
    Sketcher.Constraint("Vertical", 2),
    Sketcher.Constraint("Horizontal", 3),
    Sketcher.Constraint("Angle", 1, Q("-45 deg")),
    Sketcher.Constraint("DistanceY", 2, 1, 2, 2, Q("0.75 in")),
    Sketcher.Constraint("DistanceX", 3, 2, 3, 1, Q("0.191 in")),
    Sketcher.Constraint("DistanceX", -1, 1, 0, 2, Q("1.1875 in")),
    Sketcher.Constraint("DistanceY", -1, 1, 1, 2, Q("40.6875 in")),
])
pocket12 = body.newObject("PartDesign::Pocket", "Pocket011")
pocket12.Profile = sketch20
pocket12.Length = Q("1 in")

sketch21 = body.newObject("Sketcher::SketchObject", "Sketch020")
sketch21.AttachmentSupport = (doc.getObject("XZ_Plane"), [""])
sketch21.MapMode = "FlatFace"
add_polygon(sketch21, [(-27, 27), (-27, -27), (27, -27), (27, 27)])
sketch21.addConstraint([
    Sketcher.Constraint("Vertical", 0),
    Sketcher.Constraint("Horizontal", 1),
    Sketcher.Constraint("Vertical", 2),
    Sketcher.Constraint("Horizontal", 3),
    Sketcher.Constraint("Symmetric", 0, 2, 2, 2, -1, 1),
    Sketcher.Constraint("Equal", 3, 0),
    Sketcher.Constraint("DistanceX", 1, 1, 1, 2, Q("2.125 in")),
])
pocket13 = body.newObject("PartDesign::Pocket", "Pocket012")
pocket13.Profile = sketch21
pocket13.Length = Q("48.8 in")

sketch22 = body.newObject("Sketcher::SketchObject", "Sketch021")
sketch22.AttachmentSupport = (doc.getObject("YZ_Plane"), [""])
sketch22.MapMode = "FlatFace"
sketch22.AttachmentOffset = App.Placement(V(0, 0, -1.1875 * 25.4), App.Rotation())
sketch22.addGeometry(Part.Circle(V(1060, 11, 0), V(0, 0, 1), 10), False)
sketch22.addConstraint([
    Sketcher.Constraint("Diameter", 0, Q("0.8125 in")),
    Sketcher.Constraint("DistanceX", -1, 1, 0, 3, Q("41.71875 in")),
    Sketcher.Constraint("DistanceY", -1, 1, 0, 3, Q("0.4375 in")),
])
pocket14 = body.newObject("PartDesign::Pocket", "Pocket013")
pocket14.Profile = sketch22
pocket14.Length = Q("3.53 in")
pocket14.Reversed = True

sketch23 = body.newObject("Sketcher::SketchObject", "Sketch022")
sketch23.AttachmentSupport = (doc.getObject("YZ_Plane"), [""])
sketch23.MapMode = "FlatFace"
sketch23.AttachmentOffset = App.Placement(V(0, 0, -1.1875 * 25.4), App.Rotation())
sketch23.addGeometry(Part.Circle(V(111, 0, 0), V(0, 0, 1), 10), False)
sketch23.addConstraint([
    Sketcher.Constraint("PointOnObject", 0, 3, -1),
    Sketcher.Constraint("Diameter", 0, Q("0.8125 in")),
    Sketcher.Constraint("DistanceX", -1, 1, 0, 3, Q("4.375 in")),
])
pocket15 = body.newObject("PartDesign::Pocket", "Pocket014")
pocket15.Profile = sketch23
pocket15.Length = Q("7.08 in")
pocket15.Reversed = True

doc.recompute()
